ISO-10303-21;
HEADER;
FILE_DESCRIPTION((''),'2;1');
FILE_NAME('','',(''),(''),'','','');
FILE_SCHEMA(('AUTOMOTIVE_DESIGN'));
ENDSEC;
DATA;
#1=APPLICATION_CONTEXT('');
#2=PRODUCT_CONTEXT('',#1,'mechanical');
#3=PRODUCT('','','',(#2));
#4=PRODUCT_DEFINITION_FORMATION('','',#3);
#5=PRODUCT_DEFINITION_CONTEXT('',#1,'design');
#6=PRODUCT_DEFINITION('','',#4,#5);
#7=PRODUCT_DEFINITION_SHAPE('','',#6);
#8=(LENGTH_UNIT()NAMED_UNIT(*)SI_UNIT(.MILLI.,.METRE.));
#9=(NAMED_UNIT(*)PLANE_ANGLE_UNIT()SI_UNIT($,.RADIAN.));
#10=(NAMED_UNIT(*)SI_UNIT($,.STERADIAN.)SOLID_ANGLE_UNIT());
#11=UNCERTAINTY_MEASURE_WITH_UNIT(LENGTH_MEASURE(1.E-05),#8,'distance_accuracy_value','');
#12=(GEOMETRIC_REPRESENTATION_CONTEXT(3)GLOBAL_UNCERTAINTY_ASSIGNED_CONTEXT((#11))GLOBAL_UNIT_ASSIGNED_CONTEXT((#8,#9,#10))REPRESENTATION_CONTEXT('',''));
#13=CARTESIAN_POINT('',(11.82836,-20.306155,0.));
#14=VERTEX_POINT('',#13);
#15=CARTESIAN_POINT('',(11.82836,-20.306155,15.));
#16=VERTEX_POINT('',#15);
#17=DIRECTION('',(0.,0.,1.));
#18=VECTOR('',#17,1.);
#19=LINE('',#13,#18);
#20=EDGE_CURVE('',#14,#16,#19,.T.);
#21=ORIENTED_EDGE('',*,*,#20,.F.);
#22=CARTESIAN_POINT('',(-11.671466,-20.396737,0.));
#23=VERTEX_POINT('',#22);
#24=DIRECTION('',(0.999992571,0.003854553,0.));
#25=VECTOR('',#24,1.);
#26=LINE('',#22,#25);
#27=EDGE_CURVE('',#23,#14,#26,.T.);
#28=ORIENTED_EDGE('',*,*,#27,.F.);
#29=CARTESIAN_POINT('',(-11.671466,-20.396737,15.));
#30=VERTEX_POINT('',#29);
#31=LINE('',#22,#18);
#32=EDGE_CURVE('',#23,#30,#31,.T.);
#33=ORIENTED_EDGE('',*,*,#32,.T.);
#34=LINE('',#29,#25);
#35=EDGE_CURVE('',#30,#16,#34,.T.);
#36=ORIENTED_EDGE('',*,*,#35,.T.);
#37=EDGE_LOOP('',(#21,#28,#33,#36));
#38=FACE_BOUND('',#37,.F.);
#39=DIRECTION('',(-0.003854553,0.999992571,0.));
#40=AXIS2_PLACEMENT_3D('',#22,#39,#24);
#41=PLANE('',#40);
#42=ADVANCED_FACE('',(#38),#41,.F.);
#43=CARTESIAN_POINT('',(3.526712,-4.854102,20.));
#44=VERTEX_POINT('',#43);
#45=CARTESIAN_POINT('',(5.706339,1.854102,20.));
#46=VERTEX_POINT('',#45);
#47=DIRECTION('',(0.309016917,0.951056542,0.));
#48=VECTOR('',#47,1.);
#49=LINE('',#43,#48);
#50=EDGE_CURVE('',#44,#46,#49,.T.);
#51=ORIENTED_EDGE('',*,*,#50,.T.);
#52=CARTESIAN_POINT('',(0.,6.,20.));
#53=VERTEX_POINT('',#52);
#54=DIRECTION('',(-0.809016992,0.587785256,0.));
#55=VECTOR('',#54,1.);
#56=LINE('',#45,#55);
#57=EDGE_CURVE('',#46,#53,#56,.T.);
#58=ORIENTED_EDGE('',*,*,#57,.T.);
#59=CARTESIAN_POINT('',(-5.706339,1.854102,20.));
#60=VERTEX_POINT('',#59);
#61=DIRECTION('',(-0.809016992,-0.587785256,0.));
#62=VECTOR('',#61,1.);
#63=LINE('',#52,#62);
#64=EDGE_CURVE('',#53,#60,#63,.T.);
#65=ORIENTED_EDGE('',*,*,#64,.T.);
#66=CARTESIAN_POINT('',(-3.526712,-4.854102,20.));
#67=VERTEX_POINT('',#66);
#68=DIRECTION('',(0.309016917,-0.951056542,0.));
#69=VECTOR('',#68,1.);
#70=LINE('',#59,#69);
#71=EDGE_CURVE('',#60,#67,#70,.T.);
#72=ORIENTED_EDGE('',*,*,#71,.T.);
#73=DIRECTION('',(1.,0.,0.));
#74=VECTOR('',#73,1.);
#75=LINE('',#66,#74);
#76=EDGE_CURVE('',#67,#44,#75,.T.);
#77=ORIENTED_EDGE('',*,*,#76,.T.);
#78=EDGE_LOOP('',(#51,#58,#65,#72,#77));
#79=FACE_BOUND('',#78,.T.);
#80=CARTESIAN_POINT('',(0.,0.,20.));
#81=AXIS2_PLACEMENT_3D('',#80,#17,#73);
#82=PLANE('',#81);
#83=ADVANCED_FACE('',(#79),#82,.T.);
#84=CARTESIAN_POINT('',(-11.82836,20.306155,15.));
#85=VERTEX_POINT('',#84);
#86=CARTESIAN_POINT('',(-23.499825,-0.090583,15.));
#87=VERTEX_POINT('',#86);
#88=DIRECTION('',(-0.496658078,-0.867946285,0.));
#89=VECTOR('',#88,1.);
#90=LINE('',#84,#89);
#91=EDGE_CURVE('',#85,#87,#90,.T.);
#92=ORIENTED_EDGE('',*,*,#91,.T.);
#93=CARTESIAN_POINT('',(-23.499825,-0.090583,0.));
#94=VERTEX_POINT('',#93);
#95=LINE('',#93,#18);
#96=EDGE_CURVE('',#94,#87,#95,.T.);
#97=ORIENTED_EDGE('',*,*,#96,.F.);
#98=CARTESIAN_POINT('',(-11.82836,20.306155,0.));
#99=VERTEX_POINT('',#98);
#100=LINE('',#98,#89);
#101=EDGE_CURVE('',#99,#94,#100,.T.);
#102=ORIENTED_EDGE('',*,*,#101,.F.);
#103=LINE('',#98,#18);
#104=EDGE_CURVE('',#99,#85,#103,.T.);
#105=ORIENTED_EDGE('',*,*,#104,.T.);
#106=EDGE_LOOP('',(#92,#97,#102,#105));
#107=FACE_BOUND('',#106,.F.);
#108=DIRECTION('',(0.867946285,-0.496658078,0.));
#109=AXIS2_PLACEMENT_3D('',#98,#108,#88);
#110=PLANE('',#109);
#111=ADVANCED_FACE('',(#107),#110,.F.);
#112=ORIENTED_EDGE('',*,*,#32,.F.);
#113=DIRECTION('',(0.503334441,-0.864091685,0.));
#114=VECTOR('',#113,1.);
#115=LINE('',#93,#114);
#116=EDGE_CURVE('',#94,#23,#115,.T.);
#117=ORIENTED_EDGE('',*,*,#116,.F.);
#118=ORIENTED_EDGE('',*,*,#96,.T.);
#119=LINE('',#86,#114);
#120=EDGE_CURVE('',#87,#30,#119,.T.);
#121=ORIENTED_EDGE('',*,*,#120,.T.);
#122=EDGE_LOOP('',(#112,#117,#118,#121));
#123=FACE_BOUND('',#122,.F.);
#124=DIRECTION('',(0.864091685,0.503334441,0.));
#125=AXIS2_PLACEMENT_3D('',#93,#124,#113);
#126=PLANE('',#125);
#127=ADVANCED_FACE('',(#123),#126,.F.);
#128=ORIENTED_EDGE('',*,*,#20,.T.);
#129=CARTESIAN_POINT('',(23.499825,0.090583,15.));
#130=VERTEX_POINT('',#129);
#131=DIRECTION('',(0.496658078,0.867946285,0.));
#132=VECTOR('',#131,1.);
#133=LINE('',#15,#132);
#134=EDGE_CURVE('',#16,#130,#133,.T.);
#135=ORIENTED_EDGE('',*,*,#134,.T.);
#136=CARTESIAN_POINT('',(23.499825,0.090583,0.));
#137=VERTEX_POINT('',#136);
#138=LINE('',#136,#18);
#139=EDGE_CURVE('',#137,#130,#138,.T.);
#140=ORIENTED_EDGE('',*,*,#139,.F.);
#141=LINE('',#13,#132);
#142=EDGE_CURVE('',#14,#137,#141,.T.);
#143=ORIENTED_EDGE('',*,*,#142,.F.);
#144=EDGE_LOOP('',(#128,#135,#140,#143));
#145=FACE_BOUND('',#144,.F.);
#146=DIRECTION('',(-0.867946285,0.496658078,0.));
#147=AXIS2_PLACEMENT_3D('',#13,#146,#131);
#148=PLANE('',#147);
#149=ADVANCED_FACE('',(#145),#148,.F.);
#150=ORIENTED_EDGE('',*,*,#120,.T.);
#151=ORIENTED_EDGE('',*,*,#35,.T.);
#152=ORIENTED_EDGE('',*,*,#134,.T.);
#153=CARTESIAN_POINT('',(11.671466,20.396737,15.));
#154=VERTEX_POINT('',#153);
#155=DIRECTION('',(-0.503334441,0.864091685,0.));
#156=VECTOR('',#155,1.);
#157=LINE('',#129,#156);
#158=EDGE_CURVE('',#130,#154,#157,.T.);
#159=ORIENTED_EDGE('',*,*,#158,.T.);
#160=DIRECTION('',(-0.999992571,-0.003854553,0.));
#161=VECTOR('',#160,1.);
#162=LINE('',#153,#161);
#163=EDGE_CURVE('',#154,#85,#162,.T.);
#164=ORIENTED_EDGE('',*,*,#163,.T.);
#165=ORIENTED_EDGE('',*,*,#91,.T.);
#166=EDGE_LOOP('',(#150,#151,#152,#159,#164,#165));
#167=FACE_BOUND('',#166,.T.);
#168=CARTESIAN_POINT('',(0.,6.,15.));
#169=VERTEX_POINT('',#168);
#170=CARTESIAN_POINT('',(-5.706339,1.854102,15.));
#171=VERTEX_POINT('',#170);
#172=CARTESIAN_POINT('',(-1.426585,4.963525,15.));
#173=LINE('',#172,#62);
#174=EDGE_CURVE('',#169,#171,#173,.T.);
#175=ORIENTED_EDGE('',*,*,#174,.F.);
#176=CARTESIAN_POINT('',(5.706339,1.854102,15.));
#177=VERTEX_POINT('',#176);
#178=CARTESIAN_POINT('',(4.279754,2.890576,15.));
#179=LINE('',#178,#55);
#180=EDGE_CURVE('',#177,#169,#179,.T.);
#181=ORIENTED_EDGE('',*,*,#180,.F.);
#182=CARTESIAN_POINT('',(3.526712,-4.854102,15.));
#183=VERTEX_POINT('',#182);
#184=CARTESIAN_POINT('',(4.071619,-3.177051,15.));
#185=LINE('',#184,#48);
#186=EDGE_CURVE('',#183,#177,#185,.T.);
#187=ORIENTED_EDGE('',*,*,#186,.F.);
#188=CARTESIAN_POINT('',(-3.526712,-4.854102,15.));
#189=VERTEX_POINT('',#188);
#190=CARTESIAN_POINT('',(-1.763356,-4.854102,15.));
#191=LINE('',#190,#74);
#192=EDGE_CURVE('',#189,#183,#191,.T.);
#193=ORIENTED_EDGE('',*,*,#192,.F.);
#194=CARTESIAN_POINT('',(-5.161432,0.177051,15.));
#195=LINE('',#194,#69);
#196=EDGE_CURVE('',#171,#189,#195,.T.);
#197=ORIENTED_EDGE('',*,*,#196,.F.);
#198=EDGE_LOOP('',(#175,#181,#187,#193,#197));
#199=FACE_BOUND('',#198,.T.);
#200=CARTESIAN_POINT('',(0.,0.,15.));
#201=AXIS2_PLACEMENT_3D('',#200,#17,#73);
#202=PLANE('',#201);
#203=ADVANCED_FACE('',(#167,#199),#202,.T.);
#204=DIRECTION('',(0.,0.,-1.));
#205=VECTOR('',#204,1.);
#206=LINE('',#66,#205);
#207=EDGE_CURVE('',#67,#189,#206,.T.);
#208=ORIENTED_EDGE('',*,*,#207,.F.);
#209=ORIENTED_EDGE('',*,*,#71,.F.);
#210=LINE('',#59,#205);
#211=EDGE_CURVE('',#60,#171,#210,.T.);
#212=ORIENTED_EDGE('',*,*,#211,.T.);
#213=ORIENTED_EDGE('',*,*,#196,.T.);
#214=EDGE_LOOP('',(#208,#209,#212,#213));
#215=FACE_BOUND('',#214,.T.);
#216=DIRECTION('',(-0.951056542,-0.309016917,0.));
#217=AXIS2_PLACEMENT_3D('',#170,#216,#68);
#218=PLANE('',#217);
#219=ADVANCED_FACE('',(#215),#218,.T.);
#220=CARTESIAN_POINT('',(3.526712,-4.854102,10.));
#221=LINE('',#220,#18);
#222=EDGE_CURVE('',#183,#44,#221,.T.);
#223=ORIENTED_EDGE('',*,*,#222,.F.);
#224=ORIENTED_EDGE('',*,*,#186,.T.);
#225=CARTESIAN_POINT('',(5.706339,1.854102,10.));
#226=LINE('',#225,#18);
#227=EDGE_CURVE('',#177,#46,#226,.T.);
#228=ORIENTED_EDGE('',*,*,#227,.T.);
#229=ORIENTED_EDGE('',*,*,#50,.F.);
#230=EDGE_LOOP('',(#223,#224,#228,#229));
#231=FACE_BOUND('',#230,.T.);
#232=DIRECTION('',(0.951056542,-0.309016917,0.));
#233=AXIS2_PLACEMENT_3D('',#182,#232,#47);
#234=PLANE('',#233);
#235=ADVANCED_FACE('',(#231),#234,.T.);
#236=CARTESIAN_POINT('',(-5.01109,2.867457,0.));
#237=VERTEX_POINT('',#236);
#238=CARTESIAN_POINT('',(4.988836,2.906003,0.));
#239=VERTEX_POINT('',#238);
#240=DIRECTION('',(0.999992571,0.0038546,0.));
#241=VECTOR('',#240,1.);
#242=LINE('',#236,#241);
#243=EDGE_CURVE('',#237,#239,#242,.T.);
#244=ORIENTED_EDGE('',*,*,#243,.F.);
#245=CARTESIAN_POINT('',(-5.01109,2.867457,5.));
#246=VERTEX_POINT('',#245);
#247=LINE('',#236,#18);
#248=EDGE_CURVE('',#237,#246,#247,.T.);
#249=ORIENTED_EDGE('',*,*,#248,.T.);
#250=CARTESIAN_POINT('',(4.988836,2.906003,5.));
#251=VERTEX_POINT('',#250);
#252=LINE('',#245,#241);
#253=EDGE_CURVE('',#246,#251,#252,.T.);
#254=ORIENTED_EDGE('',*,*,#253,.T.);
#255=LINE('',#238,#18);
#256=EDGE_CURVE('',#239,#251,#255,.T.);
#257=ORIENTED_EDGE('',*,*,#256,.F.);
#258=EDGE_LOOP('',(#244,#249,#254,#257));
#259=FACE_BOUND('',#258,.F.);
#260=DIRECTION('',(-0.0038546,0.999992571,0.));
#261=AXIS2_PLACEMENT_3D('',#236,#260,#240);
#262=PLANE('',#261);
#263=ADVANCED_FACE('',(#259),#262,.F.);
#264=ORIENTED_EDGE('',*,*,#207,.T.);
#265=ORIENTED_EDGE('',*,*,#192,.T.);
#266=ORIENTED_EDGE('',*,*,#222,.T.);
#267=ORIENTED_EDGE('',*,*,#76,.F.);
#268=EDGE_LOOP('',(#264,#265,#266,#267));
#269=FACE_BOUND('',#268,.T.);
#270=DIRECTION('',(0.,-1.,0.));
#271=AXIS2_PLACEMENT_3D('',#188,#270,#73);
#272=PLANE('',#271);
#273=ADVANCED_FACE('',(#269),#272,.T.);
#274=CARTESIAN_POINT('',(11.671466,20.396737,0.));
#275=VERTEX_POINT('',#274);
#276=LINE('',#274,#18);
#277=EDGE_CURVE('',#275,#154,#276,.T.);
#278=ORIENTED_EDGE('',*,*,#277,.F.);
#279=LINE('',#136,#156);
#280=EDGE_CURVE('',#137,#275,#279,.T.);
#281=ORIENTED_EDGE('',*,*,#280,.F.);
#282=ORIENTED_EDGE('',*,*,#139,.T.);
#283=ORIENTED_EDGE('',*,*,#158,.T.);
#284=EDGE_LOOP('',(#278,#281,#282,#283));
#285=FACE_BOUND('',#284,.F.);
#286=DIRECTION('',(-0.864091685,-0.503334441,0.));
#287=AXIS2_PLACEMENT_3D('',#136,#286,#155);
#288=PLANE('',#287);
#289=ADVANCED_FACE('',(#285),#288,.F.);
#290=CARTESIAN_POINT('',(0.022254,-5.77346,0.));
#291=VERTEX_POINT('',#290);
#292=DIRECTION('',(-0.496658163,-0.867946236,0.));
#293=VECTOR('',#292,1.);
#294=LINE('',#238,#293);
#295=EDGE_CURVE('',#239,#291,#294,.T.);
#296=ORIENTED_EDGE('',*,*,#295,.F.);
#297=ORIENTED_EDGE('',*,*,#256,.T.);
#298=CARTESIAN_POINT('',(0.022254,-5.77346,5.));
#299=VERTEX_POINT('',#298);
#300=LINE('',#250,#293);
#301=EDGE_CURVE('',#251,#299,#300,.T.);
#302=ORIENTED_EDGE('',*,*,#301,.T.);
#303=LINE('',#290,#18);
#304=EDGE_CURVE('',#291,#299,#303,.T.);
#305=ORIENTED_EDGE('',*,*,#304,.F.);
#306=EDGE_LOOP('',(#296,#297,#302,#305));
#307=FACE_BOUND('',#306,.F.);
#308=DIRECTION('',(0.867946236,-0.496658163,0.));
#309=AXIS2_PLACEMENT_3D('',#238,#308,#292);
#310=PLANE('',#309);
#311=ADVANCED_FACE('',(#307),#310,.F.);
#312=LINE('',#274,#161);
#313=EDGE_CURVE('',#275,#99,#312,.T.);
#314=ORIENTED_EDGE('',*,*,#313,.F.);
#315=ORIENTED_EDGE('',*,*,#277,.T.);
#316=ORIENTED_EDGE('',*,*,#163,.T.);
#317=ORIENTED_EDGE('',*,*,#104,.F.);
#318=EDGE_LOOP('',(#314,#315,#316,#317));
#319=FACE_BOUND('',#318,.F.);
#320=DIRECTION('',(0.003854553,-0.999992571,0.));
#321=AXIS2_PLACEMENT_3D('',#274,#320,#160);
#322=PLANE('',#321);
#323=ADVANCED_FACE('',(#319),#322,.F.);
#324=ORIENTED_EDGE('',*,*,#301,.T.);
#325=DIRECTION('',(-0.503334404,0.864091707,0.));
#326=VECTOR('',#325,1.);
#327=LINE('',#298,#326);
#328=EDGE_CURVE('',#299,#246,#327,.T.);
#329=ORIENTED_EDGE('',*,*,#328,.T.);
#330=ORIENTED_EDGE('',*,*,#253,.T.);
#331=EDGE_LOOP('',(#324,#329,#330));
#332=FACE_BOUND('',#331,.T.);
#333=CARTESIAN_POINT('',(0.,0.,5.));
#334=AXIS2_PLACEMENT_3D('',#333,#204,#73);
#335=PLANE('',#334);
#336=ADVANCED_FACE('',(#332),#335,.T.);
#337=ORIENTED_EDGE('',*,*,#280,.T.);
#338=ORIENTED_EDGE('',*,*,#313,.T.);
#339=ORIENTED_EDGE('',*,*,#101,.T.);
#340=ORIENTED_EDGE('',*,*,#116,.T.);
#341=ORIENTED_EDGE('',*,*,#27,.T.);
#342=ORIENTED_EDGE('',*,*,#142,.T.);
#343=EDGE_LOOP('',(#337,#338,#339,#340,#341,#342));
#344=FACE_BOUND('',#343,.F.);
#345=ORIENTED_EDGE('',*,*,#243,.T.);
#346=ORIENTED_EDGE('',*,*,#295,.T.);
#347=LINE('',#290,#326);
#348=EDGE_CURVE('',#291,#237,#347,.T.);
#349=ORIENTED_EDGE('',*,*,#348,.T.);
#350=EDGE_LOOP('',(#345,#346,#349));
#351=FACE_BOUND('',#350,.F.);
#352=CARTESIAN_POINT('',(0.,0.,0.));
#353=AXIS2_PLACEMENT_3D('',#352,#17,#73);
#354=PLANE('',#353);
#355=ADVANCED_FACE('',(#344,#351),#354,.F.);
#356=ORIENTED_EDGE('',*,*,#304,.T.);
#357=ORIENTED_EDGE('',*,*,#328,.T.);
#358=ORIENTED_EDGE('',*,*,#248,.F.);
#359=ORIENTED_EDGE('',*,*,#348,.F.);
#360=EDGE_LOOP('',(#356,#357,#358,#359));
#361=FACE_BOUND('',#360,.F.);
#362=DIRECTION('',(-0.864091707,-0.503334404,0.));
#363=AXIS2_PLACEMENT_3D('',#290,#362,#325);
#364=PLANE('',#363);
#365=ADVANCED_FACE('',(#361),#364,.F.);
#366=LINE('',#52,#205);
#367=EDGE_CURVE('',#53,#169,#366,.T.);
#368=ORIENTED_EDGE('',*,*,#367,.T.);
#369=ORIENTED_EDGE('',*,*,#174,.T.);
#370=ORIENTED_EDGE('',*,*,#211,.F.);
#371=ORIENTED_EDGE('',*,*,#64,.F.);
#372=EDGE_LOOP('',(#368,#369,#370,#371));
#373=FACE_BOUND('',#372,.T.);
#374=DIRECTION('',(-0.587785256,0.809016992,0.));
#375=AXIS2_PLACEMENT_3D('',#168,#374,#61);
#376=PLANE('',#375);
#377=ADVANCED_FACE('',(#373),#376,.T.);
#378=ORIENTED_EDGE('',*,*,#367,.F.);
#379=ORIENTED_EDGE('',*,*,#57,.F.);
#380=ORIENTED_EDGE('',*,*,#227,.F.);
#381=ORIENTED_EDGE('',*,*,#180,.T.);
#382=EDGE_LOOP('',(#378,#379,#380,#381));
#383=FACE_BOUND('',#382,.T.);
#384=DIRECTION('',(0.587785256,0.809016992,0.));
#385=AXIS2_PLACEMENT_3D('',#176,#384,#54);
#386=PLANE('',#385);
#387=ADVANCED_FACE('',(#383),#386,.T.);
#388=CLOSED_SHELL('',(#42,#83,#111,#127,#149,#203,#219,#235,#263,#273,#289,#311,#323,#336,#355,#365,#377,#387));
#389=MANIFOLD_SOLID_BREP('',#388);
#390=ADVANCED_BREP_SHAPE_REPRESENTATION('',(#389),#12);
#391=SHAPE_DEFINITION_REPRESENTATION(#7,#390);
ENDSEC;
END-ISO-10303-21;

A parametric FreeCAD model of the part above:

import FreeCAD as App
import Part
import Sketcher
from FreeCAD import Vector
Q = App.Units.Quantity


def add_polygon(sketch, points):
    """Adds a closed chain of lines whose ends are joined by coincident constraints."""
    first, n = sketch.GeometryCount, len(points)
    for a, b in zip(points, points[1:] + points[:1]):
        sketch.addGeometry(Part.LineSegment(App.Vector(*a, 0), App.Vector(*b, 0)), False)
    for i in range(n):
        sketch.addConstraint(Sketcher.Constraint("Coincident", first + i, 2, first + (i + 1) % n, 1))

doc = App.newDocument("Part")
params = doc.addObject("Spreadsheet::Sheet", "Params")
for row, (alias, value) in enumerate([
    ("sketch1_length", "23.5 mm"),
    ("sketch1_length2", "23.499999 mm"),
    ("sketch1_length3", "23.500001 mm"),
    ("sketch1_length4", "23.5 mm"),
    ("sketch1_length5", "23.499999 mm"),
    ("pad1_length", "15 mm"),
    ("pad2_length", "10 mm"),
    ("sketch3_length", "10 mm"),
    ("pocket1_length", "5 mm"),
], start=1):
    params.set(f"A{row}", alias)
    params.set(f"B{row}", "=" + value)
    params.setAlias(f"B{row}", alias)

body = doc.addObject("PartDesign::Body", "Body")

# Sketch on XY plane
sketch1 = body.newObject("Sketcher::SketchObject", "Sketch")
sketch1.AttachmentSupport = (doc.getObject("XY_Plane"), [""])
sketch1.MapMode = "FlatFace"
add_polygon(sketch1, [(-11.82836, 20.306155), (-23.499825, -0.090583), (-11.671466, -20.396737), (11.82836, -20.306155), (23.499825, 0.090583), (11.671466, 20.396737)])  # lines 0-5
sketch1.addConstraint([
    Sketcher.Constraint("Distance", 0, 23.5),
    Sketcher.Constraint("Distance", 1, 23.499999),
    Sketcher.Constraint("Distance", 2, 23.500001),
    Sketcher.Constraint("Distance", 3, 23.5),
    Sketcher.Constraint("Distance", 4, 23.499999),
    Sketcher.Constraint("Distance", 5, 23.500001),
    Sketcher.Constraint("DistanceX", -1, 1, 2, 2, 11.82836),
    Sketcher.Constraint("DistanceX", 5, 2, -1, 1, 11.82836),
    Sketcher.Constraint("DistanceX", 0, 2, 1, 2, 11.828359),
    Sketcher.Constraint("DistanceX", 1, 2, 3, 2, 35.171291),
    Sketcher.Constraint("DistanceY", 1, 2, 3, 2, 20.48732),
    Sketcher.Constraint("DistanceY", 0, 2, -1, 1, 0.090583),
])
sketch1.setExpression("Constraints[6]", "Params.sketch1_length")
sketch1.setExpression("Constraints[7]", "Params.sketch1_length2")
sketch1.setExpression("Constraints[8]", "Params.sketch1_length3")
sketch1.setExpression("Constraints[9]", "Params.sketch1_length4")
sketch1.setExpression("Constraints[10]", "Params.sketch1_length5")
pad1 = body.newObject("PartDesign::Pad", "Pad")
pad1.Profile = sketch1
pad1.setExpression("Length", "Params.pad1_length")

# Sketch on XY plane
sketch2 = body.newObject("Sketcher::SketchObject", "Sketch001")
sketch2.AttachmentSupport = (doc.getObject("XY_Plane"), [""])
sketch2.MapMode = "FlatFace"
sketch2.AttachmentOffset = App.Placement(Vector(0, 0, 15), App.Rotation())
add_polygon(sketch2, [(-3.526712, -4.854102), (3.526712, -4.854102), (5.706339, 1.854102), (0, 6), (-5.706339, 1.854102)])  # lines 0-4
sketch2.addConstraint([
    Sketcher.Constraint("Horizontal", 0),
    Sketcher.Constraint("Symmetric", 1, 2, 3, 2, -2),
    Sketcher.Constraint("PointOnObject", 2, 2, -2),
    Sketcher.Constraint("Equal", 1, 2),
    Sketcher.Constraint("Equal", 3, 4),
    Sketcher.Constraint("Angle", 1, Q("72.000005 deg")),
    Sketcher.Constraint("Angle", 2, Q("144 deg")),
    Sketcher.Constraint("DistanceY", -1, 1, 2, 2, 6.0),
    Sketcher.Constraint("DistanceY", -1, 1, 1, 2, 1.854102),
])
pad2 = body.newObject("PartDesign::Pad", "Pad001")
pad2.Profile = sketch2
pad2.setExpression("Length", "Params.pad2_length")
pad2.Midplane = True

# Sketch on XY plane
sketch3 = body.newObject("Sketcher::SketchObject", "Sketch002")
sketch3.AttachmentSupport = (doc.getObject("XY_Plane"), [""])
sketch3.MapMode = "FlatFace"
add_polygon(sketch3, [(-5.01109, 2.867457), (4.988836, 2.906003), (0.022254, -5.77346)])  # lines 0-2
sketch3.addConstraint([
    Sketcher.Constraint("Equal", 0, 1),
    Sketcher.Constraint("Equal", 1, 2),
    Sketcher.Constraint("Distance", 0, 10.0),
    Sketcher.Constraint("DistanceY", 1, 2, -1, 1, 5.77346),
    Sketcher.Constraint("DistanceX", 2, 2, -1, 1, 5.01109),
    Sketcher.Constraint("DistanceX", 1, 2, 0, 2, 4.966582),
])
sketch3.setExpression("Constraints[5]", "Params.sketch3_length")
pocket1 = body.newObject("PartDesign::Pocket", "Pocket")
pocket1.Profile = sketch3
pocket1.setExpression("Length", "Params.pocket1_length")
pocket1.Reversed = True

doc.recompute()
